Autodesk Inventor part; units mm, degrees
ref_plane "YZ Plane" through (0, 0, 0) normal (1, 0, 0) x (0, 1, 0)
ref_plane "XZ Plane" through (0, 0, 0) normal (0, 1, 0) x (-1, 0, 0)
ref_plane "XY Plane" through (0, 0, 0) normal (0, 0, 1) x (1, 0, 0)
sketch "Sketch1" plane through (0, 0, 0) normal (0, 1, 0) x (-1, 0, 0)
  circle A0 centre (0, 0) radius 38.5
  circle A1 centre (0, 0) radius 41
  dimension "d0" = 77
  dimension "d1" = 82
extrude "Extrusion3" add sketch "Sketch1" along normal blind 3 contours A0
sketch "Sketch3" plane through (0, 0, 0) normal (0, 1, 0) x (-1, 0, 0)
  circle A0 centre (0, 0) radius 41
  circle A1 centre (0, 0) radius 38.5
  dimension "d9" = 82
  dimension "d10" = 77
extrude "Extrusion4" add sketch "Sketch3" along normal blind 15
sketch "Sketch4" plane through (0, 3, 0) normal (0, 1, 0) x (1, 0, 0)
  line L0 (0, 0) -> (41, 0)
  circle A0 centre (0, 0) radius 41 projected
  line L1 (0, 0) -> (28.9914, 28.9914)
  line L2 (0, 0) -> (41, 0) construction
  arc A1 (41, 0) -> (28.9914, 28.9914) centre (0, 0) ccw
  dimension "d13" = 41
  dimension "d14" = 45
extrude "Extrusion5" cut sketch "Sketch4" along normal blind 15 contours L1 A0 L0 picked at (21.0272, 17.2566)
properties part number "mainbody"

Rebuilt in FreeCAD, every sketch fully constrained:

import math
import FreeCAD as App
import Part
import Sketcher
from FreeCAD import Vector
Q = App.Units.Quantity

doc = App.newDocument("Part")
body = doc.addObject("PartDesign::Body", "Body")

sketch1 = body.newObject("Sketcher::SketchObject", "Sketch")
sketch1.AttachmentSupport = (doc.getObject("XZ_Plane"), [""])
sketch1.MapMode = "FlatFace"
sketch1.addGeometry(Part.Circle(Vector(0, 0, 0), Vector(0, 0, 1), 38), False)
sketch1.addConstraint([
    Sketcher.Constraint("Coincident", 0, 3, -1, 1),
    Sketcher.Constraint("Diameter", 0, Q("77 mm")),
])
pad1 = body.newObject("PartDesign::Pad", "Pad")
pad1.Profile = sketch1
pad1.Length = 3
pad1.Reversed = True

sketch2 = body.newObject("Sketcher::SketchObject", "Sketch001")
sketch2.AttachmentSupport = (doc.getObject("XZ_Plane"), [""])
sketch2.MapMode = "FlatFace"
sketch2.addGeometry([
    Part.Circle(Vector(0, 0, 0), Vector(0, 0, 1), 41),
    Part.Circle(Vector(0, 0, 0), Vector(0, 0, 1), 38),
], False)
sketch2.addConstraint([
    Sketcher.Constraint("Coincident", 0, 3, -1, 1),
    Sketcher.Constraint("Coincident", 1, 3, -1, 1),
    Sketcher.Constraint("Diameter", 0, Q("82 mm")),
    Sketcher.Constraint("Diameter", 1, Q("77 mm")),
])
pad2 = body.newObject("PartDesign::Pad", "Pad001")
pad2.Profile = sketch2
pad2.Length = 15
pad2.Reversed = True

sketch3 = body.newObject("Sketcher::SketchObject", "Sketch002")
sketch3.AttachmentSupport = (doc.getObject("XZ_Plane"), [""])
sketch3.MapMode = "FlatFace"
sketch3.AttachmentOffset = App.Placement(Vector(0, 0, -3), App.Rotation())
sketch3.addGeometry([
    Part.LineSegment(Vector(29, -29, 0), Vector(0, 0, 0)),
    Part.LineSegment(Vector(0, 0, 0), Vector(41, 0, 0)),
    Part.ArcOfCircle(Part.Circle(Vector(0, 0, 0), Vector(0, 0, 1), 41), math.radians(-45), math.radians(0)),
], False)
sketch3.addConstraint([
    Sketcher.Constraint("Coincident", 0, 2, 1, 1),
    Sketcher.Constraint("Coincident", 1, 2, 2, 2),
    Sketcher.Constraint("Coincident", 2, 1, 0, 1),
    Sketcher.Constraint("Horizontal", 1),
    Sketcher.Constraint("Coincident", 2, 3, -1, 1),
    Sketcher.Constraint("Coincident", 0, 2, -1, 1),
    Sketcher.Constraint("Radius", 2, Q("41 mm")),
    Sketcher.Constraint("Angle", 0, Q("135 deg")),
])
pocket1 = body.newObject("PartDesign::Pocket", "Pocket")
pocket1.Profile = sketch3
pocket1.Length = 15

doc.recompute()
